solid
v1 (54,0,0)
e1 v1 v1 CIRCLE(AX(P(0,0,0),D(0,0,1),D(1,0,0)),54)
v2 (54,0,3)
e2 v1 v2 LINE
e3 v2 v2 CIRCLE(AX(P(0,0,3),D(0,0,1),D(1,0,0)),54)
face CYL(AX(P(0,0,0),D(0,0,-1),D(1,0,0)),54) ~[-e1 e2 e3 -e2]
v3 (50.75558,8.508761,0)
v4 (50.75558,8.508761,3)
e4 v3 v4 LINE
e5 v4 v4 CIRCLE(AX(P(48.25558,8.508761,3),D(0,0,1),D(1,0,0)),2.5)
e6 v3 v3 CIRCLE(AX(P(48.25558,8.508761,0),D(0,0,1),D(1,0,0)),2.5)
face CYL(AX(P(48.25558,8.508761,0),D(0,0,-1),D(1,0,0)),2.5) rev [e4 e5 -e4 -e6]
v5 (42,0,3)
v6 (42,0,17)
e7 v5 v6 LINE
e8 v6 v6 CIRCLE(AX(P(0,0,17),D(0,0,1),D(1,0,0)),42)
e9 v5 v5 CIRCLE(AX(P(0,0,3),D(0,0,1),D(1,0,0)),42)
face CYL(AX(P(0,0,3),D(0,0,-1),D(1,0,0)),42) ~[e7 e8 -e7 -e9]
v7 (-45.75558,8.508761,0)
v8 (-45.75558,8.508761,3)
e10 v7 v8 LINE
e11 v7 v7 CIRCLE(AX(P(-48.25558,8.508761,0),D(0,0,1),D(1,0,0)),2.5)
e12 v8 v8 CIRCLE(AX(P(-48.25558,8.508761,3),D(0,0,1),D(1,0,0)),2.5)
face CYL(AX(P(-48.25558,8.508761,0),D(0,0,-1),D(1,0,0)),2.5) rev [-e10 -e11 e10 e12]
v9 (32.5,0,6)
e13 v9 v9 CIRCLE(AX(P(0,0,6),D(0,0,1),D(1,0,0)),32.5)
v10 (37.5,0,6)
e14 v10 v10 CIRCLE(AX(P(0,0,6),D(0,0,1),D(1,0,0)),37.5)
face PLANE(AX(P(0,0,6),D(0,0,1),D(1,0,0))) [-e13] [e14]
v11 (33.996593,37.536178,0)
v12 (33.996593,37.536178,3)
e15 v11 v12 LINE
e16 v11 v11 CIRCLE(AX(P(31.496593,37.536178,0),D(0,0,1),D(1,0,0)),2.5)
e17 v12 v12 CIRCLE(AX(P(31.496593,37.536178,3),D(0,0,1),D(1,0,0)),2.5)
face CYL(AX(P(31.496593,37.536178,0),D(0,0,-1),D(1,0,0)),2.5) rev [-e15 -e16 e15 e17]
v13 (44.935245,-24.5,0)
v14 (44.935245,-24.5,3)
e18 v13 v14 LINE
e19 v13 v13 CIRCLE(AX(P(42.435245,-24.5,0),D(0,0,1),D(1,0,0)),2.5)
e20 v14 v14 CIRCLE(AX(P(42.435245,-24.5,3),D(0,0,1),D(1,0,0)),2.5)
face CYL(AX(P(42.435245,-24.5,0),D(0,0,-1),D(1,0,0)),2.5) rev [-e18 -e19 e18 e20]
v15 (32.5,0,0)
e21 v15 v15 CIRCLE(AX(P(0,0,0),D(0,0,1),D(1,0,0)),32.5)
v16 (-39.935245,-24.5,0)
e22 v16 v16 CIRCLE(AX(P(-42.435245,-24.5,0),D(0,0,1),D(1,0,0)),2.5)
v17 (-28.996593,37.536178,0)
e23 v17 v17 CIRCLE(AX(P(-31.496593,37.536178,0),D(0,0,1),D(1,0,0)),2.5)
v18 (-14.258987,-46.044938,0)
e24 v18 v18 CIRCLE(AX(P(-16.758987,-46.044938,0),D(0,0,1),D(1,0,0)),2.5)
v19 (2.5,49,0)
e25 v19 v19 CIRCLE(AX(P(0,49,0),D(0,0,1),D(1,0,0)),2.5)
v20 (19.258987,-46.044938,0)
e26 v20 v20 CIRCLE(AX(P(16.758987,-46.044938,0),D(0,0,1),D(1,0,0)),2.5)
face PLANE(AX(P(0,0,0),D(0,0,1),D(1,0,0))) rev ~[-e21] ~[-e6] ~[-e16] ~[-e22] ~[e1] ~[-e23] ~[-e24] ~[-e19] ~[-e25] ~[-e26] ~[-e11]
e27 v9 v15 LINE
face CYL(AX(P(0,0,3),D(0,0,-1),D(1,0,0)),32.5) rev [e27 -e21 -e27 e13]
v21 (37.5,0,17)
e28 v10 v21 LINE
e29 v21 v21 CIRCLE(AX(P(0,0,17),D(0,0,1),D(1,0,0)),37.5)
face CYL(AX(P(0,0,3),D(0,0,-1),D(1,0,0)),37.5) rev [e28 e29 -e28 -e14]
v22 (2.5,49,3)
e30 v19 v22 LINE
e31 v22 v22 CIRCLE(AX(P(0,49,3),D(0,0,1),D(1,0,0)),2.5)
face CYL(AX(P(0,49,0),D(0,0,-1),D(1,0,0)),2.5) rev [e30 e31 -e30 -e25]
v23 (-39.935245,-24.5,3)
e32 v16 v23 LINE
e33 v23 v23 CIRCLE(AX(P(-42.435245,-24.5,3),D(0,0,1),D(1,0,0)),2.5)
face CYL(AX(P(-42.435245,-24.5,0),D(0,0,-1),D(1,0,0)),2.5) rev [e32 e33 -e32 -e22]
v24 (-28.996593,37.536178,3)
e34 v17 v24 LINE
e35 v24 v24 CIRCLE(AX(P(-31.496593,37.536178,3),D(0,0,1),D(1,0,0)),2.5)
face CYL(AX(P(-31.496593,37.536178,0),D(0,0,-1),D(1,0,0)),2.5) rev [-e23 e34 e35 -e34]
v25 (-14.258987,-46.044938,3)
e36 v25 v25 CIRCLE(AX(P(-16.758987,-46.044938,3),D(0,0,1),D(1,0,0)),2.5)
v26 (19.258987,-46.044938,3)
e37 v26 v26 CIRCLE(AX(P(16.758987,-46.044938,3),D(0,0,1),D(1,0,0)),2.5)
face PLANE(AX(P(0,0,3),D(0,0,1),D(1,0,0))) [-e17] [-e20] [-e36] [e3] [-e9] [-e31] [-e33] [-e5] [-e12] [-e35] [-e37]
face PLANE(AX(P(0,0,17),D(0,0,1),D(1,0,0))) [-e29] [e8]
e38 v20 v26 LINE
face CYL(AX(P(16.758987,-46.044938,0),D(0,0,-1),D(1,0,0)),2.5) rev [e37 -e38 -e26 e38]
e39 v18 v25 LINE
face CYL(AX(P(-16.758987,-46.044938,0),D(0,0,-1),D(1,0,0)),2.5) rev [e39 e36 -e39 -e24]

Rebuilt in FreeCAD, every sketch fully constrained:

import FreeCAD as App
import Part
import Sketcher
from FreeCAD import Vector
Q = App.Units.Quantity

doc = App.newDocument("Part")
params = doc.addObject("Spreadsheet::Sheet", "Params")
for row, (alias, value) in enumerate([
    ("sketch1_diameter", "108 mm"),
    ("sketch1_diameter2", "5 mm"),
    ("sketch1_diameter3", "65 mm"),
    ("pad1_length", "3 mm"),
    ("sketch2_diameter", "84 mm"),
    ("sketch2_diameter2", "75 mm"),
    ("pad2_length", "14 mm"),
    ("sketch3_diameter", "75 mm"),
    ("sketch3_diameter2", "65 mm"),
    ("pad3_length", "3 mm"),
], start=1):
    params.set(f"A{row}", alias)
    params.set(f"B{row}", "=" + value)
    params.setAlias(f"B{row}", alias)

body = doc.addObject("PartDesign::Body", "Body")

sketch1 = body.newObject("Sketcher::SketchObject", "Sketch")
sketch1.AttachmentSupport = (doc.getObject("XY_Plane"), [""])
sketch1.MapMode = "FlatFace"
sketch1.addGeometry(Part.Circle(Vector(0, 0, 0), Vector(0, 0, 1), 54), False)
sketch1.addGeometry(Part.Circle(Vector(-42.4, -24.5, 0), Vector(0, 0, 1), 2.5), False)
sketch1.addGeometry(Part.Circle(Vector(-16.8, -46, 0), Vector(0, 0, 1), 2.5), False)
sketch1.addGeometry(Part.Circle(Vector(16.8, -46, 0), Vector(0, 0, 1), 2.5), False)
sketch1.addGeometry(Part.Circle(Vector(42.4, -24.5, 0), Vector(0, 0, 1), 2.5), False)
sketch1.addGeometry(Part.Circle(Vector(0, 0, 0), Vector(0, 0, 1), 32.5), False)
sketch1.addGeometry(Part.Circle(Vector(-48.3, 8.5, 0), Vector(0, 0, 1), 2.5), False)
sketch1.addGeometry(Part.Circle(Vector(-31.5, 37.5, 0), Vector(0, 0, 1), 2.5), False)
sketch1.addGeometry(Part.Circle(Vector(48.3, 8.5, 0), Vector(0, 0, 1), 2.5), False)
sketch1.addGeometry(Part.Circle(Vector(0, 49, 0), Vector(0, 0, 1), 2.5), False)
sketch1.addGeometry(Part.Circle(Vector(31.5, 37.5, 0), Vector(0, 0, 1), 2.5), False)
sketch1.addConstraint(Sketcher.Constraint("Coincident", 0, 3, -1, 1))
sketch1.addConstraint(Sketcher.Constraint("Coincident", 5, 3, -1, 1))
sketch1.addConstraint(Sketcher.Constraint("Equal", 1, 2))
sketch1.addConstraint(Sketcher.Constraint("Equal", 2, 3))
sketch1.addConstraint(Sketcher.Constraint("Equal", 3, 4))
sketch1.addConstraint(Sketcher.Constraint("Equal", 4, 6))
sketch1.addConstraint(Sketcher.Constraint("Equal", 6, 7))
sketch1.addConstraint(Sketcher.Constraint("Equal", 7, 8))
sketch1.addConstraint(Sketcher.Constraint("Equal", 8, 9))
sketch1.addConstraint(Sketcher.Constraint("Equal", 9, 10))
sketch1.addConstraint(Sketcher.Constraint("Symmetric", 2, 3, 3, 3, -2))
sketch1.addConstraint(Sketcher.Constraint("Symmetric", 1, 3, 4, 3, -2))
sketch1.addConstraint(Sketcher.Constraint("Symmetric", 6, 3, 8, 3, -2))
sketch1.addConstraint(Sketcher.Constraint("Symmetric", 7, 3, 10, 3, -2))
sketch1.addConstraint(Sketcher.Constraint("PointOnObject", 9, 3, -2))
sketch1.addConstraint(Sketcher.Constraint("Diameter", 0, Q("108 mm")))
sketch1.addConstraint(Sketcher.Constraint("Diameter", 1, Q("5 mm")))
sketch1.addConstraint(Sketcher.Constraint("Diameter", 5, Q("65 mm")))
sketch1.addConstraint(Sketcher.Constraint("DistanceY", -1, 1, 9, 3, Q("49 mm")))
sketch1.addConstraint(Sketcher.Constraint("DistanceY", 1, 3, -1, 1, Q("24.5 mm")))
sketch1.addConstraint(Sketcher.Constraint("DistanceY", 2, 3, 6, 3, Q("54.553699 mm")))
sketch1.addConstraint(Sketcher.Constraint("DistanceY", 2, 3, -1, 1, Q("46.044938 mm")))
sketch1.addConstraint(Sketcher.Constraint("DistanceX", 6, 3, -1, 1, Q("48.25558 mm")))
sketch1.addConstraint(Sketcher.Constraint("DistanceX", 1, 3, 2, 3, Q("25.676258 mm")))
sketch1.addConstraint(Sketcher.Constraint("DistanceX", 1, 3, 4, 3, Q("84.87049 mm")))
sketch1.addConstraint(Sketcher.Constraint("DistanceX", 7, 3, -1, 1, Q("31.496593 mm")))
sketch1.addConstraint(Sketcher.Constraint("DistanceY", -1, 1, 7, 3, Q("37.536178 mm")))
sketch1.setExpression("Constraints[15]", "Params.sketch1_diameter")
sketch1.setExpression("Constraints[16]", "Params.sketch1_diameter2")
sketch1.setExpression("Constraints[17]", "Params.sketch1_diameter3")
pad1 = body.newObject("PartDesign::Pad", "Pad")
pad1.Profile = sketch1
pad1.setExpression("Length", "Params.pad1_length")

sketch2 = body.newObject("Sketcher::SketchObject", "Sketch001")
sketch2.AttachmentSupport = (doc.getObject("XY_Plane"), [""])
sketch2.MapMode = "FlatFace"
sketch2.AttachmentOffset = App.Placement(Vector(0, 0, 3), App.Rotation())
sketch2.addGeometry(Part.Circle(Vector(0, 0, 0), Vector(0, 0, 1), 42), False)
sketch2.addGeometry(Part.Circle(Vector(0, 0, 0), Vector(0, 0, 1), 38), False)
sketch2.addConstraint(Sketcher.Constraint("Coincident", 0, 3, -1, 1))
sketch2.addConstraint(Sketcher.Constraint("Coincident", 1, 3, -1, 1))
sketch2.addConstraint(Sketcher.Constraint("Diameter", 0, Q("84 mm")))
sketch2.addConstraint(Sketcher.Constraint("Diameter", 1, Q("75 mm")))
sketch2.setExpression("Constraints[2]", "Params.sketch2_diameter")
sketch2.setExpression("Constraints[3]", "Params.sketch2_diameter2")
pad2 = body.newObject("PartDesign::Pad", "Pad001")
pad2.Profile = sketch2
pad2.setExpression("Length", "Params.pad2_length")

sketch3 = body.newObject("Sketcher::SketchObject", "Sketch002")
sketch3.AttachmentSupport = (doc.getObject("XY_Plane"), [""])
sketch3.MapMode = "FlatFace"
sketch3.AttachmentOffset = App.Placement(Vector(0, 0, 3), App.Rotation())
sketch3.addGeometry(Part.Circle(Vector(0, 0, 0), Vector(0, 0, 1), 38), False)
sketch3.addGeometry(Part.Circle(Vector(0, 0, 0), Vector(0, 0, 1), 32), False)
sketch3.addConstraint(Sketcher.Constraint("Coincident", 0, 3, -1, 1))
sketch3.addConstraint(Sketcher.Constraint("Coincident", 1, 3, -1, 1))
sketch3.addConstraint(Sketcher.Constraint("Diameter", 0, Q("75 mm")))
sketch3.addConstraint(Sketcher.Constraint("Diameter", 1, Q("65 mm")))
sketch3.setExpression("Constraints[2]", "Params.sketch3_diameter")
sketch3.setExpression("Constraints[3]", "Params.sketch3_diameter2")
pad3 = body.newObject("PartDesign::Pad", "Pad002")
pad3.Profile = sketch3
pad3.setExpression("Length", "Params.pad3_length")

doc.recompute()
